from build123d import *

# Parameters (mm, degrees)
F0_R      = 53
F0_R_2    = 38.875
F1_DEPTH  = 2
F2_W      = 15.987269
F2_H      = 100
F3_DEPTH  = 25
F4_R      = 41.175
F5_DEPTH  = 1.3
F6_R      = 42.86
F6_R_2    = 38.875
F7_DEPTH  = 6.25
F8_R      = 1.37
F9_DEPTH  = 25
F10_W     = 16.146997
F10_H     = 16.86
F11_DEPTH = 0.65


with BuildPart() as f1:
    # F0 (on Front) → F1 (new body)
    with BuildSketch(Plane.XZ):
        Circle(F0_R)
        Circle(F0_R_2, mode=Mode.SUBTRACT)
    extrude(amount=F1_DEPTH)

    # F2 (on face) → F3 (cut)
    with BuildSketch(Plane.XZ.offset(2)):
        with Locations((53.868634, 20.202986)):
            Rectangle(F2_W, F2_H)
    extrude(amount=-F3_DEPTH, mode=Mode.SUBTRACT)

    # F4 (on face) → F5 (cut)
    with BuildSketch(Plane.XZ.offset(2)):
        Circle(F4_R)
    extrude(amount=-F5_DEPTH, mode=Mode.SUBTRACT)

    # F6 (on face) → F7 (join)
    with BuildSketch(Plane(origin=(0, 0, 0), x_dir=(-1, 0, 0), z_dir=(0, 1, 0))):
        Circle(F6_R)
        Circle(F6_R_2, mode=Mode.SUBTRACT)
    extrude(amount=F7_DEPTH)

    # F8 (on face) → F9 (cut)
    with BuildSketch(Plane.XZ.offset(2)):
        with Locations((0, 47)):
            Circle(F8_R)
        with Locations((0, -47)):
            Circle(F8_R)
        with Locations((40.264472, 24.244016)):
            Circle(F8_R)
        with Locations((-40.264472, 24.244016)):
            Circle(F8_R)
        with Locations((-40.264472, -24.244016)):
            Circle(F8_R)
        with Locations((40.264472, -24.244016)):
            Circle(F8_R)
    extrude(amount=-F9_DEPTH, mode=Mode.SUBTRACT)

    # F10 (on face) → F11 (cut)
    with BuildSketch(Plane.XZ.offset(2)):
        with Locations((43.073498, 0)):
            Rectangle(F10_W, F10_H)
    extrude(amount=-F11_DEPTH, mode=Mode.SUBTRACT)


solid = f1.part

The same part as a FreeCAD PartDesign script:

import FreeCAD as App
import Part
import Sketcher

V = App.Vector
Q = App.Units.Quantity

doc = App.newDocument("Part")
params = doc.addObject("Spreadsheet::Sheet", "Params")
for row, (alias, value) in enumerate([
    ("sketch1_diameter", "106 mm"),
    ("sketch1_diameter2", "77.75 mm"),
    ("pad1_length", "2 mm"),
    ("sketch2_height", "100 mm"),
    ("pocket1_length", "25 mm"),
    ("sketch3_diameter", "82.35 mm"),
    ("pocket2_length", "1.3 mm"),
    ("sketch4_diameter", "85.72 mm"),
    ("sketch4_diameter2", "77.75 mm"),
    ("pad2_length", "6.25 mm"),
    ("sketch5_diameter", "2.74 mm"),
    ("pocket3_length", "25 mm"),
    ("sketch6_height", "16.86 mm"),
    ("pocket4_length", "0.65 mm"),
], start=1):
    params.set(f"A{row}", alias)
    params.set(f"B{row}", "=" + value)
    params.setAlias(f"B{row}", alias)

body = doc.addObject("PartDesign::Body", "Body")

sketch1 = body.newObject("Sketcher::SketchObject", "Sketch")
sketch1.AttachmentSupport = (doc.getObject("XZ_Plane"), [""])
sketch1.MapMode = "FlatFace"
sketch1.addGeometry([
    Part.Circle(V(0, 0, 0), V(0, 0, 1), 53),
    Part.Circle(V(0, 0, 0), V(0, 0, 1), 39),
], False)
sketch1.addConstraint([
    Sketcher.Constraint("Coincident", 0, 3, -1, 1),
    Sketcher.Constraint("Coincident", 1, 3, -1, 1),
    Sketcher.Constraint("Diameter", 0, Q("106 mm")),
    Sketcher.Constraint("Diameter", 1, Q("77.75 mm")),
])
sketch1.setExpression("Constraints[2]", "Params.sketch1_diameter")
sketch1.setExpression("Constraints[3]", "Params.sketch1_diameter2")
pad1 = body.newObject("PartDesign::Pad", "Pad")
pad1.Profile = sketch1
pad1.setExpression("Length", "Params.pad1_length")

sketch2 = body.newObject("Sketcher::SketchObject", "Sketch001")
sketch2.AttachmentSupport = (doc.getObject("XZ_Plane"), [""])
sketch2.MapMode = "FlatFace"
sketch2.AttachmentOffset = App.Placement(V(0, 0, 2), App.Rotation())
sketch2.addGeometry([
    Part.LineSegment(V(46, 70, 0), V(46, -30, 0)),
    Part.LineSegment(V(46, -30, 0), V(62, -30, 0)),
    Part.LineSegment(V(62, -30, 0), V(62, 70, 0)),
    Part.LineSegment(V(62, 70, 0), V(46, 70, 0)),
], False)
sketch2.addConstraint([
    Sketcher.Constraint("Coincident", 0, 2, 1, 1),
    Sketcher.Constraint("Coincident", 1, 2, 2, 1),
    Sketcher.Constraint("Coincident", 2, 2, 3, 1),
    Sketcher.Constraint("Coincident", 3, 2, 0, 1),
    Sketcher.Constraint("Vertical", 0),
    Sketcher.Constraint("Horizontal", 1),
    Sketcher.Constraint("Vertical", 2),
    Sketcher.Constraint("Horizontal", 3),
    Sketcher.Constraint("DistanceY", 0, 2, 0, 1, Q("100 mm")),
    Sketcher.Constraint("DistanceX", -1, 1, 0, 2, Q("45.875 mm")),
    Sketcher.Constraint("DistanceX", 1, 1, 1, 2, Q("15.987269 mm")),
    Sketcher.Constraint("DistanceY", 0, 2, -1, 1, Q("29.797014 mm")),
])
sketch2.setExpression("Constraints[8]", "Params.sketch2_height")
pocket1 = body.newObject("PartDesign::Pocket", "Pocket")
pocket1.Profile = sketch2
pocket1.setExpression("Length", "Params.pocket1_length")

sketch3 = body.newObject("Sketcher::SketchObject", "Sketch002")
sketch3.AttachmentSupport = (doc.getObject("XZ_Plane"), [""])
sketch3.MapMode = "FlatFace"
sketch3.AttachmentOffset = App.Placement(V(0, 0, 2), App.Rotation())
sketch3.addGeometry(Part.Circle(V(0, 0, 0), V(0, 0, 1), 41), False)
sketch3.addConstraint([
    Sketcher.Constraint("Coincident", 0, 3, -1, 1),
    Sketcher.Constraint("Diameter", 0, Q("82.35 mm")),
])
sketch3.setExpression("Constraints[1]", "Params.sketch3_diameter")
pocket2 = body.newObject("PartDesign::Pocket", "Pocket001")
pocket2.Profile = sketch3
pocket2.setExpression("Length", "Params.pocket2_length")

sketch4 = body.newObject("Sketcher::SketchObject", "Sketch003")
sketch4.AttachmentSupport = (doc.getObject("XZ_Plane"), [""])
sketch4.MapMode = "FlatFace"
sketch4.addGeometry([
    Part.Circle(V(0, 0, 0), V(0, 0, 1), 43),
    Part.Circle(V(0, 0, 0), V(0, 0, 1), 39),
], False)
sketch4.addConstraint([
    Sketcher.Constraint("Coincident", 0, 3, -1, 1),
    Sketcher.Constraint("Coincident", 1, 3, -1, 1),
    Sketcher.Constraint("Diameter", 0, Q("85.72 mm")),
    Sketcher.Constraint("Diameter", 1, Q("77.75 mm")),
])
sketch4.setExpression("Constraints[2]", "Params.sketch4_diameter")
sketch4.setExpression("Constraints[3]", "Params.sketch4_diameter2")
pad2 = body.newObject("PartDesign::Pad", "Pad001")
pad2.Profile = sketch4
pad2.setExpression("Length", "Params.pad2_length")
pad2.Reversed = True

sketch5 = body.newObject("Sketcher::SketchObject", "Sketch004")
sketch5.AttachmentSupport = (doc.getObject("XZ_Plane"), [""])
sketch5.MapMode = "FlatFace"
sketch5.AttachmentOffset = App.Placement(V(0, 0, 2), App.Rotation())
sketch5.addGeometry([
    Part.Circle(V(0, 47, 0), V(0, 0, 1), 1.4),
    Part.Circle(V(0, -47, 0), V(0, 0, 1), 1.4),
    Part.Circle(V(40.3, 24.2, 0), V(0, 0, 1), 1.4),
    Part.Circle(V(-40.3, 24.2, 0), V(0, 0, 1), 1.4),
    Part.Circle(V(-40.3, -24.2, 0), V(0, 0, 1), 1.4),
    Part.Circle(V(40.3, -24.2, 0), V(0, 0, 1), 1.4),
], False)
sketch5.addConstraint([
    Sketcher.Constraint("Equal", 0, 1),
    Sketcher.Constraint("Equal", 1, 2),
    Sketcher.Constraint("Equal", 2, 3),
    Sketcher.Constraint("Equal", 3, 4),
    Sketcher.Constraint("Equal", 4, 5),
    Sketcher.Constraint("Symmetric", 0, 3, 1, 3, -1, 1),
    Sketcher.Constraint("Symmetric", 2, 3, 4, 3, -1, 1),
    Sketcher.Constraint("Symmetric", 3, 3, 5, 3, -1, 1),
    Sketcher.Constraint("Symmetric", 2, 3, 3, 3, -2),
    Sketcher.Constraint("PointOnObject", 0, 3, -2),
    Sketcher.Constraint("Diameter", 0, Q("2.74 mm")),
    Sketcher.Constraint("DistanceY", -1, 1, 0, 3, Q("47 mm")),
    Sketcher.Constraint("DistanceX", -1, 1, 2, 3, Q("40.264472 mm")),
    Sketcher.Constraint("DistanceY", 4, 3, 3, 3, Q("48.488032 mm")),
])
sketch5.setExpression("Constraints[10]", "Params.sketch5_diameter")
pocket3 = body.newObject("PartDesign::Pocket", "Pocket002")
pocket3.Profile = sketch5
pocket3.setExpression("Length", "Params.pocket3_length")

sketch6 = body.newObject("Sketcher::SketchObject", "Sketch005")
sketch6.AttachmentSupport = (doc.getObject("XZ_Plane"), [""])
sketch6.MapMode = "FlatFace"
sketch6.AttachmentOffset = App.Placement(V(0, 0, 2), App.Rotation())
sketch6.addGeometry([
    Part.LineSegment(V(35, 8, 0), V(35, -8, 0)),
    Part.LineSegment(V(35, -8, 0), V(51, -8, 0)),
    Part.LineSegment(V(51, -8, 0), V(51, 8, 0)),
    Part.LineSegment(V(51, 8, 0), V(35, 8, 0)),
], False)
sketch6.addConstraint([
    Sketcher.Constraint("Coincident", 0, 2, 1, 1),
    Sketcher.Constraint("Coincident", 1, 2, 2, 1),
    Sketcher.Constraint("Coincident", 2, 2, 3, 1),
    Sketcher.Constraint("Coincident", 3, 2, 0, 1),
    Sketcher.Constraint("Vertical", 0),
    Sketcher.Constraint("Horizontal", 1),
    Sketcher.Constraint("Vertical", 2),
    Sketcher.Constraint("Horizontal", 3),
    Sketcher.Constraint("DistanceX", -1, 1, 0, 2, Q("35 mm")),
    Sketcher.Constraint("DistanceY", 0, 2, 0, 1, Q("16.86 mm")),
    Sketcher.Constraint("DistanceY", 0, 2, -1, 1, Q("8.43 mm")),
    Sketcher.Constraint("DistanceX", 1, 1, 1, 2, Q("16.146997 mm")),
])
sketch6.setExpression("Constraints[9]", "Params.sketch6_height")
pocket4 = body.newObject("PartDesign::Pocket", "Pocket003")
pocket4.Profile = sketch6
pocket4.setExpression("Length", "Params.pocket4_length")

doc.recompute()
